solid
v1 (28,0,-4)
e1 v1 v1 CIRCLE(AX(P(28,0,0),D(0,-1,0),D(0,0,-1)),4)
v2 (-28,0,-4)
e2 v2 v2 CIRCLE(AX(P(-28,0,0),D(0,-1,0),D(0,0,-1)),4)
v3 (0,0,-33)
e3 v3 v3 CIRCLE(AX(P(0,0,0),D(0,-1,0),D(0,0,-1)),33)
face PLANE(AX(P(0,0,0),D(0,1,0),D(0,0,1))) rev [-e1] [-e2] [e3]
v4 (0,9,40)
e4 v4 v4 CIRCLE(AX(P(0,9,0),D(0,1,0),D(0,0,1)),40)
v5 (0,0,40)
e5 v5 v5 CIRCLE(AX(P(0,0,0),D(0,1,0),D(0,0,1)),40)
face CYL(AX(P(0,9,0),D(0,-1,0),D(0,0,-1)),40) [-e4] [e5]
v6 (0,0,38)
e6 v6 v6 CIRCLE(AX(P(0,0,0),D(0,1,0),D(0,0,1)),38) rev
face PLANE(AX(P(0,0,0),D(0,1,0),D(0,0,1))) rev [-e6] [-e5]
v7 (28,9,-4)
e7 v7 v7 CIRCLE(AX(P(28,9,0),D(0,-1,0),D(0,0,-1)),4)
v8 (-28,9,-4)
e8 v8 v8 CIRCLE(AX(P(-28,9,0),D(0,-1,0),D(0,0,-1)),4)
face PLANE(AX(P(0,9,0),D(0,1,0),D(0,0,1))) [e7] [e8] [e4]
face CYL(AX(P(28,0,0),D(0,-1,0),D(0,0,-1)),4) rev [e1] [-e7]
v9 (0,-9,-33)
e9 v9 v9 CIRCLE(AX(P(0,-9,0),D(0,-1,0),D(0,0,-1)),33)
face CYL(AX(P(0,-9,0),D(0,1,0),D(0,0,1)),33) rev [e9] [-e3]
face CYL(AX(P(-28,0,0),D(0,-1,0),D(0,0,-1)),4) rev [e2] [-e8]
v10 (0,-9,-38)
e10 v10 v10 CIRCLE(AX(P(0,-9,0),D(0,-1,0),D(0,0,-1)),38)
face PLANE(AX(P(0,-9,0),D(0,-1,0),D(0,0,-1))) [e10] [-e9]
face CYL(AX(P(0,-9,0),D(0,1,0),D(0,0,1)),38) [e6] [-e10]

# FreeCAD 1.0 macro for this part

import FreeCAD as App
import Part
import Sketcher

doc = App.newDocument("Part")
params = doc.addObject("Spreadsheet::Sheet", "Params")
for row, (alias, value) in enumerate([
    ("sketch1_diameter", "80 mm"),
    ("pad1_length", "9 mm"),
    ("sketch2_diameter", "76 mm"),
    ("sketch2_diameter2", "66 mm"),
    ("pad2_length", "9 mm"),
    ("sketch3_diameter", "8 mm"),
    ("hole_diameter", "8 mm"),
], start=1):
    params.set(f"A{row}", alias)
    params.set(f"B{row}", "=" + value)
    params.setAlias(f"B{row}", alias)

body = doc.addObject("PartDesign::Body", "Body")

# Sketch on XZ plane
sketch1 = doc.addObject("Sketcher::SketchObject", "Sketch")
body.addObject(sketch1)
sketch1.AttachmentSupport = (doc.XZ_Plane, [""])
sketch1.MapMode = "FlatFace"
sketch1.addGeometry(Part.Circle(App.Vector(0, 0, 0), App.Vector(0, 0, 1), 40), False)
sketch1.addConstraint(Sketcher.Constraint("Coincident", 0, 3, -1, 1))
sketch1.addConstraint(Sketcher.Constraint("Diameter", 0, 80.0))
sketch1.setExpression("Constraints[1]", "Params.sketch1_diameter")
pad1 = doc.addObject("PartDesign::Pad", "Pad")
body.addObject(pad1)
pad1.Profile = sketch1
pad1.setExpression("Length", "Params.pad1_length")
pad1.Reversed = True

# Sketch on XZ plane
sketch2 = doc.addObject("Sketcher::SketchObject", "Sketch001")
body.addObject(sketch2)
sketch2.AttachmentSupport = (doc.XZ_Plane, [""])
sketch2.MapMode = "FlatFace"
sketch2.addGeometry(Part.Circle(App.Vector(0, 0, 0), App.Vector(0, 0, 1), 38), False)
sketch2.addGeometry(Part.Circle(App.Vector(0, 0, 0), App.Vector(0, 0, 1), 33), False)
sketch2.addConstraint(Sketcher.Constraint("Coincident", 0, 3, -1, 1))
sketch2.addConstraint(Sketcher.Constraint("Coincident", 1, 3, -1, 1))
sketch2.addConstraint(Sketcher.Constraint("Diameter", 0, 76.0))
sketch2.addConstraint(Sketcher.Constraint("Diameter", 1, 66.0))
sketch2.setExpression("Constraints[2]", "Params.sketch2_diameter")
sketch2.setExpression("Constraints[3]", "Params.sketch2_diameter2")
pad2 = doc.addObject("PartDesign::Pad", "Pad001")
body.addObject(pad2)
pad2.Profile = sketch2
pad2.setExpression("Length", "Params.pad2_length")

# Sketch on XZ plane
sketch3 = doc.addObject("Sketcher::SketchObject", "Sketch002")
body.addObject(sketch3)
sketch3.AttachmentSupport = (doc.XZ_Plane, [""])
sketch3.MapMode = "FlatFace"
sketch3.addGeometry(Part.Circle(App.Vector(28, 0, 0), App.Vector(0, 0, 1), 4), False)
sketch3.addGeometry(Part.Circle(App.Vector(-28, 0, 0), App.Vector(0, 0, 1), 4), False)
sketch3.addConstraint(Sketcher.Constraint("Equal", 0, 1))
sketch3.addConstraint(Sketcher.Constraint("Symmetric", 0, 3, 1, 3, -1, 1))
sketch3.addConstraint(Sketcher.Constraint("PointOnObject", 0, 3, -1))
sketch3.addConstraint(Sketcher.Constraint("Diameter", 0, 8.0))
sketch3.addConstraint(Sketcher.Constraint("DistanceX", -1, 1, 0, 3, 28.0))
sketch3.setExpression("Constraints[3]", "Params.sketch3_diameter")
doc.recompute()
hole = doc.addObject("PartDesign::Hole", "Hole")
body.addObject(hole)
hole.Profile = sketch3
hole.ThreadType = "None"
hole.setExpression("Diameter", "Params.hole_diameter")
hole.DepthType = "ThroughAll"

doc.recompute()
